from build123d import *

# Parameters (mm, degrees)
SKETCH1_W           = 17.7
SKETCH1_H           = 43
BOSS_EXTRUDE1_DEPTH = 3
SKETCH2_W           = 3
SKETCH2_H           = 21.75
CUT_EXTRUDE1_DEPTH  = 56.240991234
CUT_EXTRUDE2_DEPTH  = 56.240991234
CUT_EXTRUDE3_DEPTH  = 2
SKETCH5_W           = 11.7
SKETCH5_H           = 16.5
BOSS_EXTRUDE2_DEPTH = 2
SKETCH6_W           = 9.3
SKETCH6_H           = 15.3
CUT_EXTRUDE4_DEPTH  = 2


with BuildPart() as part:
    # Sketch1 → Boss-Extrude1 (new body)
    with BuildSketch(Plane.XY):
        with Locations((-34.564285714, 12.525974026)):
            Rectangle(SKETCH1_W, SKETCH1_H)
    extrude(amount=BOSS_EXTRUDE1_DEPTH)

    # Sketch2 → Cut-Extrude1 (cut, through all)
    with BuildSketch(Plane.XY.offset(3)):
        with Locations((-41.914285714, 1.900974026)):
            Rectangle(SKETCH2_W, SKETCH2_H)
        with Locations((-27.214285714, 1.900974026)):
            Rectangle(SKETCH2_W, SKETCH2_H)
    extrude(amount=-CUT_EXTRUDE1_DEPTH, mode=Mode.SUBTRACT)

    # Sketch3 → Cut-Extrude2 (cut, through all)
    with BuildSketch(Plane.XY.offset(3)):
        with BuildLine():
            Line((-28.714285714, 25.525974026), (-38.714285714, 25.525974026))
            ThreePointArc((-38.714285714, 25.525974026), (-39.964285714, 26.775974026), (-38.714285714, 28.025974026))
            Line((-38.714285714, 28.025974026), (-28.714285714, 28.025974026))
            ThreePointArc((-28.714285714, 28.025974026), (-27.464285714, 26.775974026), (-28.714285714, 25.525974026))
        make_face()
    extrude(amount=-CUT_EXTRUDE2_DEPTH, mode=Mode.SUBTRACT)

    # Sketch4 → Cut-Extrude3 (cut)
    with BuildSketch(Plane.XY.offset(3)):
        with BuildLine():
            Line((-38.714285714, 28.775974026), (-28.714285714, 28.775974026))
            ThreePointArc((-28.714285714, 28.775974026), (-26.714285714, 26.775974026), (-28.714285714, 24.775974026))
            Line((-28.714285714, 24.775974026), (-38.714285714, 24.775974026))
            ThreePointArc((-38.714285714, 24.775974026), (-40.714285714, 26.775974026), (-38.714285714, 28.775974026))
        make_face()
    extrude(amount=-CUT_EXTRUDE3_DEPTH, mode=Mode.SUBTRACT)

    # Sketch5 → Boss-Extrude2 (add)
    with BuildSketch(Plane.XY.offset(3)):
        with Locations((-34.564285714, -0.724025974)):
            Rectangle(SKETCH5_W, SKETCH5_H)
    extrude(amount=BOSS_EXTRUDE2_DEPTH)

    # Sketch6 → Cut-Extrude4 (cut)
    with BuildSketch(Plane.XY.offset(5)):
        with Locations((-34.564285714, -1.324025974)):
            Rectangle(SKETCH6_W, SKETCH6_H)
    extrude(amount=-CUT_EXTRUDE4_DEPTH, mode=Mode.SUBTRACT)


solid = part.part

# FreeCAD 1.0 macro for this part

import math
import FreeCAD as App
import Part
import Sketcher
from FreeCAD import Vector
Q = App.Units.Quantity


def add_polygon(sketch, points):
    """Adds a closed chain of lines whose ends are joined by coincident constraints."""
    first, n = sketch.GeometryCount, len(points)
    for a, b in zip(points, points[1:] + points[:1]):
        sketch.addGeometry(Part.LineSegment(App.Vector(*a, 0), App.Vector(*b, 0)), False)
    for i in range(n):
        sketch.addConstraint(Sketcher.Constraint("Coincident", first + i, 2, first + (i + 1) % n, 1))

doc = App.newDocument("Part")
params = doc.addObject("Spreadsheet::Sheet", "Params")
for row, (alias, value) in enumerate([
    ("sketch1_height", "43 mm"),
    ("sketch1_width", "17.7 mm"),
    ("pad1_length", "3 mm"),
    ("sketch2_width", "3 mm"),
    ("sketch2_height", "21.75 mm"),
    ("sketch3_width", "10 mm"),
    ("sketch3_radius", "1.25 mm"),
    ("sketch4_radius", "2 mm"),
    ("sketch4_width", "10 mm"),
    ("pocket3_length", "2 mm"),
    ("sketch5_width", "11.7 mm"),
    ("sketch5_height", "16.5 mm"),
    ("pad2_length", "2 mm"),
    ("sketch6_width", "9.3 mm"),
    ("sketch6_height", "15.3 mm"),
    ("pocket4_length", "2 mm"),
], start=1):
    params.set(f"A{row}", alias)
    params.set(f"B{row}", "=" + value)
    params.setAlias(f"B{row}", alias)

body = doc.addObject("PartDesign::Body", "Body")

sketch1 = body.newObject("Sketcher::SketchObject", "Sketch")
sketch1.AttachmentSupport = (doc.getObject("XY_Plane"), [""])
sketch1.MapMode = "FlatFace"
add_polygon(sketch1, [(-43, 34), (-43, -9), (-26, -9), (-26, 34)])
sketch1.addConstraint([
    Sketcher.Constraint("Vertical", 0),
    Sketcher.Constraint("Horizontal", 1),
    Sketcher.Constraint("Vertical", 2),
    Sketcher.Constraint("Horizontal", 3),
    Sketcher.Constraint("DistanceY", 0, 2, 0, 1, Q("43 mm")),
    Sketcher.Constraint("DistanceX", 1, 1, 1, 2, Q("17.7 mm")),
    Sketcher.Constraint("DistanceX", 0, 2, -1, 1, Q("43.414286 mm")),
    Sketcher.Constraint("DistanceY", 0, 2, -1, 1, Q("8.974026 mm")),
])
sketch1.setExpression("Constraints[8]", "Params.sketch1_height")
sketch1.setExpression("Constraints[9]", "Params.sketch1_width")
pad1 = body.newObject("PartDesign::Pad", "Pad")
pad1.Profile = sketch1
pad1.setExpression("Length", "Params.pad1_length")

sketch2 = body.newObject("Sketcher::SketchObject", "Sketch001")
sketch2.AttachmentSupport = (doc.getObject("XY_Plane"), [""])
sketch2.MapMode = "FlatFace"
sketch2.AttachmentOffset = App.Placement(Vector(0, 0, 3), App.Rotation())
add_polygon(sketch2, [(-43.4, 12.8), (-43.4, -9), (-40.4, -9), (-40.4, 12.8)])
add_polygon(sketch2, [(-28.7, 12.8), (-28.7, -9), (-25.7, -9), (-25.7, 12.8)])
sketch2.addConstraint([
    Sketcher.Constraint("Vertical", 0),
    Sketcher.Constraint("Horizontal", 1),
    Sketcher.Constraint("Vertical", 2),
    Sketcher.Constraint("Horizontal", 3),
    Sketcher.Constraint("Vertical", 4),
    Sketcher.Constraint("Horizontal", 5),
    Sketcher.Constraint("Vertical", 6),
    Sketcher.Constraint("Horizontal", 7),
    Sketcher.Constraint("Horizontal", 1, 2, 4, 2),
    Sketcher.Constraint("Horizontal", 3, 2, 6, 2),
    Sketcher.Constraint("Equal", 3, 5),
    Sketcher.Constraint("DistanceX", 1, 1, 1, 2, Q("3 mm")),
    Sketcher.Constraint("DistanceY", 0, 2, 0, 1, Q("21.75 mm")),
    Sketcher.Constraint("DistanceX", 1, 2, 4, 2, Q("11.7 mm")),
    Sketcher.Constraint("DistanceX", 0, 2, -1, 1, Q("43.414286 mm")),
    Sketcher.Constraint("DistanceY", 0, 2, -1, 1, Q("8.974026 mm")),
])
sketch2.setExpression("Constraints[19]", "Params.sketch2_width")
sketch2.setExpression("Constraints[20]", "Params.sketch2_height")
pocket1 = body.newObject("PartDesign::Pocket", "Pocket")
pocket1.Profile = sketch2
pocket1.Type = "ThroughAll"

sketch3 = body.newObject("Sketcher::SketchObject", "Sketch002")
sketch3.AttachmentSupport = (doc.getObject("XY_Plane"), [""])
sketch3.MapMode = "FlatFace"
sketch3.AttachmentOffset = App.Placement(Vector(0, 0, 3), App.Rotation())
sketch3.addGeometry([
    Part.LineSegment(Vector(-38.7, 25.5, 0), Vector(-28.7, 25.5, 0)),
    Part.ArcOfCircle(Part.Circle(Vector(-28.7, 26.8, 0), Vector(0, 0, 1), 1.2), math.radians(-90), math.radians(90)),
    Part.LineSegment(Vector(-28.7, 28, 0), Vector(-38.7, 28, 0)),
    Part.ArcOfCircle(Part.Circle(Vector(-38.7, 26.8, 0), Vector(0, 0, 1), 1.2), math.radians(90), math.radians(270)),
], False)
sketch3.addConstraint([
    Sketcher.Constraint("Tangent", 0, 2, 1, 1),
    Sketcher.Constraint("Tangent", 1, 2, 2, 1),
    Sketcher.Constraint("Tangent", 2, 2, 3, 1),
    Sketcher.Constraint("Tangent", 3, 2, 0, 1),
    Sketcher.Constraint("Horizontal", 0),
    Sketcher.Constraint("Horizontal", 2),
    Sketcher.Constraint("DistanceX", 0, 1, 0, 2, Q("10 mm")),
    Sketcher.Constraint("Radius", 1, Q("1.25 mm")),
    Sketcher.Constraint("DistanceX", 1, 3, -1, 1, Q("28.714286 mm")),
    Sketcher.Constraint("DistanceY", -1, 1, 1, 3, Q("26.775974 mm")),
])
sketch3.setExpression("Constraints[6]", "Params.sketch3_width")
sketch3.setExpression("Constraints[7]", "Params.sketch3_radius")
pocket2 = body.newObject("PartDesign::Pocket", "Pocket001")
pocket2.Profile = sketch3
pocket2.Type = "ThroughAll"

sketch4 = body.newObject("Sketcher::SketchObject", "Sketch003")
sketch4.AttachmentSupport = (doc.getObject("XY_Plane"), [""])
sketch4.MapMode = "FlatFace"
sketch4.AttachmentOffset = App.Placement(Vector(0, 0, 3), App.Rotation())
sketch4.addGeometry([
    Part.LineSegment(Vector(-28.7, 28.8, 0), Vector(-38.7, 28.8, 0)),
    Part.ArcOfCircle(Part.Circle(Vector(-38.7, 26.8, 0), Vector(0, 0, 1), 2), math.radians(90), math.radians(270)),
    Part.LineSegment(Vector(-38.7, 24.8, 0), Vector(-28.7, 24.8, 0)),
    Part.ArcOfCircle(Part.Circle(Vector(-28.7, 26.8, 0), Vector(0, 0, 1), 2), math.radians(-90), math.radians(90)),
], False)
sketch4.addConstraint([
    Sketcher.Constraint("Tangent", 0, 2, 1, 1),
    Sketcher.Constraint("Tangent", 1, 2, 2, 1),
    Sketcher.Constraint("Tangent", 2, 2, 3, 1),
    Sketcher.Constraint("Tangent", 3, 2, 0, 1),
    Sketcher.Constraint("Horizontal", 0),
    Sketcher.Constraint("Horizontal", 2),
    Sketcher.Constraint("Radius", 1, Q("2 mm")),
    Sketcher.Constraint("DistanceX", 0, 2, 0, 1, Q("10 mm")),
    Sketcher.Constraint("DistanceX", 1, 3, -1, 1, Q("38.714286 mm")),
    Sketcher.Constraint("DistanceY", -1, 1, 1, 3, Q("26.775974 mm")),
])
sketch4.setExpression("Constraints[6]", "Params.sketch4_radius")
sketch4.setExpression("Constraints[7]", "Params.sketch4_width")
pocket3 = body.newObject("PartDesign::Pocket", "Pocket002")
pocket3.Profile = sketch4
pocket3.setExpression("Length", "Params.pocket3_length")

sketch5 = body.newObject("Sketcher::SketchObject", "Sketch004")
sketch5.AttachmentSupport = (doc.getObject("XY_Plane"), [""])
sketch5.MapMode = "FlatFace"
sketch5.AttachmentOffset = App.Placement(Vector(0, 0, 3), App.Rotation())
add_polygon(sketch5, [(-40, 8), (-40, -9), (-29, -9), (-29, 8)])
sketch5.addConstraint([
    Sketcher.Constraint("Vertical", 0),
    Sketcher.Constraint("Horizontal", 1),
    Sketcher.Constraint("Vertical", 2),
    Sketcher.Constraint("Horizontal", 3),
    Sketcher.Constraint("DistanceX", 1, 1, 1, 2, Q("11.7 mm")),
    Sketcher.Constraint("DistanceY", 0, 2, 0, 1, Q("16.5 mm")),
    Sketcher.Constraint("DistanceX", 0, 2, -1, 1, Q("40.414286 mm")),
    Sketcher.Constraint("DistanceY", 0, 2, -1, 1, Q("8.974026 mm")),
])
sketch5.setExpression("Constraints[8]", "Params.sketch5_width")
sketch5.setExpression("Constraints[9]", "Params.sketch5_height")
pad2 = body.newObject("PartDesign::Pad", "Pad001")
pad2.Profile = sketch5
pad2.setExpression("Length", "Params.pad2_length")

sketch6 = body.newObject("Sketcher::SketchObject", "Sketch005")
sketch6.AttachmentSupport = (doc.getObject("XY_Plane"), [""])
sketch6.MapMode = "FlatFace"
sketch6.AttachmentOffset = App.Placement(Vector(0, 0, 5), App.Rotation())
add_polygon(sketch6, [(-39, 6), (-39, -9), (-30, -9), (-30, 6)])
sketch6.addConstraint([
    Sketcher.Constraint("Vertical", 0),
    Sketcher.Constraint("Horizontal", 1),
    Sketcher.Constraint("Vertical", 2),
    Sketcher.Constraint("Horizontal", 3),
    Sketcher.Constraint("DistanceX", 1, 1, 1, 2, Q("9.3 mm")),
    Sketcher.Constraint("DistanceY", 0, 2, 0, 1, Q("15.3 mm")),
    Sketcher.Constraint("DistanceX", 0, 2, -1, 1, Q("39.214286 mm")),
    Sketcher.Constraint("DistanceY", 0, 2, -1, 1, Q("8.974026 mm")),
])
sketch6.setExpression("Constraints[8]", "Params.sketch6_width")
sketch6.setExpression("Constraints[9]", "Params.sketch6_height")
pocket4 = body.newObject("PartDesign::Pocket", "Pocket003")
pocket4.Profile = sketch6
pocket4.setExpression("Length", "Params.pocket4_length")

doc.recompute()
